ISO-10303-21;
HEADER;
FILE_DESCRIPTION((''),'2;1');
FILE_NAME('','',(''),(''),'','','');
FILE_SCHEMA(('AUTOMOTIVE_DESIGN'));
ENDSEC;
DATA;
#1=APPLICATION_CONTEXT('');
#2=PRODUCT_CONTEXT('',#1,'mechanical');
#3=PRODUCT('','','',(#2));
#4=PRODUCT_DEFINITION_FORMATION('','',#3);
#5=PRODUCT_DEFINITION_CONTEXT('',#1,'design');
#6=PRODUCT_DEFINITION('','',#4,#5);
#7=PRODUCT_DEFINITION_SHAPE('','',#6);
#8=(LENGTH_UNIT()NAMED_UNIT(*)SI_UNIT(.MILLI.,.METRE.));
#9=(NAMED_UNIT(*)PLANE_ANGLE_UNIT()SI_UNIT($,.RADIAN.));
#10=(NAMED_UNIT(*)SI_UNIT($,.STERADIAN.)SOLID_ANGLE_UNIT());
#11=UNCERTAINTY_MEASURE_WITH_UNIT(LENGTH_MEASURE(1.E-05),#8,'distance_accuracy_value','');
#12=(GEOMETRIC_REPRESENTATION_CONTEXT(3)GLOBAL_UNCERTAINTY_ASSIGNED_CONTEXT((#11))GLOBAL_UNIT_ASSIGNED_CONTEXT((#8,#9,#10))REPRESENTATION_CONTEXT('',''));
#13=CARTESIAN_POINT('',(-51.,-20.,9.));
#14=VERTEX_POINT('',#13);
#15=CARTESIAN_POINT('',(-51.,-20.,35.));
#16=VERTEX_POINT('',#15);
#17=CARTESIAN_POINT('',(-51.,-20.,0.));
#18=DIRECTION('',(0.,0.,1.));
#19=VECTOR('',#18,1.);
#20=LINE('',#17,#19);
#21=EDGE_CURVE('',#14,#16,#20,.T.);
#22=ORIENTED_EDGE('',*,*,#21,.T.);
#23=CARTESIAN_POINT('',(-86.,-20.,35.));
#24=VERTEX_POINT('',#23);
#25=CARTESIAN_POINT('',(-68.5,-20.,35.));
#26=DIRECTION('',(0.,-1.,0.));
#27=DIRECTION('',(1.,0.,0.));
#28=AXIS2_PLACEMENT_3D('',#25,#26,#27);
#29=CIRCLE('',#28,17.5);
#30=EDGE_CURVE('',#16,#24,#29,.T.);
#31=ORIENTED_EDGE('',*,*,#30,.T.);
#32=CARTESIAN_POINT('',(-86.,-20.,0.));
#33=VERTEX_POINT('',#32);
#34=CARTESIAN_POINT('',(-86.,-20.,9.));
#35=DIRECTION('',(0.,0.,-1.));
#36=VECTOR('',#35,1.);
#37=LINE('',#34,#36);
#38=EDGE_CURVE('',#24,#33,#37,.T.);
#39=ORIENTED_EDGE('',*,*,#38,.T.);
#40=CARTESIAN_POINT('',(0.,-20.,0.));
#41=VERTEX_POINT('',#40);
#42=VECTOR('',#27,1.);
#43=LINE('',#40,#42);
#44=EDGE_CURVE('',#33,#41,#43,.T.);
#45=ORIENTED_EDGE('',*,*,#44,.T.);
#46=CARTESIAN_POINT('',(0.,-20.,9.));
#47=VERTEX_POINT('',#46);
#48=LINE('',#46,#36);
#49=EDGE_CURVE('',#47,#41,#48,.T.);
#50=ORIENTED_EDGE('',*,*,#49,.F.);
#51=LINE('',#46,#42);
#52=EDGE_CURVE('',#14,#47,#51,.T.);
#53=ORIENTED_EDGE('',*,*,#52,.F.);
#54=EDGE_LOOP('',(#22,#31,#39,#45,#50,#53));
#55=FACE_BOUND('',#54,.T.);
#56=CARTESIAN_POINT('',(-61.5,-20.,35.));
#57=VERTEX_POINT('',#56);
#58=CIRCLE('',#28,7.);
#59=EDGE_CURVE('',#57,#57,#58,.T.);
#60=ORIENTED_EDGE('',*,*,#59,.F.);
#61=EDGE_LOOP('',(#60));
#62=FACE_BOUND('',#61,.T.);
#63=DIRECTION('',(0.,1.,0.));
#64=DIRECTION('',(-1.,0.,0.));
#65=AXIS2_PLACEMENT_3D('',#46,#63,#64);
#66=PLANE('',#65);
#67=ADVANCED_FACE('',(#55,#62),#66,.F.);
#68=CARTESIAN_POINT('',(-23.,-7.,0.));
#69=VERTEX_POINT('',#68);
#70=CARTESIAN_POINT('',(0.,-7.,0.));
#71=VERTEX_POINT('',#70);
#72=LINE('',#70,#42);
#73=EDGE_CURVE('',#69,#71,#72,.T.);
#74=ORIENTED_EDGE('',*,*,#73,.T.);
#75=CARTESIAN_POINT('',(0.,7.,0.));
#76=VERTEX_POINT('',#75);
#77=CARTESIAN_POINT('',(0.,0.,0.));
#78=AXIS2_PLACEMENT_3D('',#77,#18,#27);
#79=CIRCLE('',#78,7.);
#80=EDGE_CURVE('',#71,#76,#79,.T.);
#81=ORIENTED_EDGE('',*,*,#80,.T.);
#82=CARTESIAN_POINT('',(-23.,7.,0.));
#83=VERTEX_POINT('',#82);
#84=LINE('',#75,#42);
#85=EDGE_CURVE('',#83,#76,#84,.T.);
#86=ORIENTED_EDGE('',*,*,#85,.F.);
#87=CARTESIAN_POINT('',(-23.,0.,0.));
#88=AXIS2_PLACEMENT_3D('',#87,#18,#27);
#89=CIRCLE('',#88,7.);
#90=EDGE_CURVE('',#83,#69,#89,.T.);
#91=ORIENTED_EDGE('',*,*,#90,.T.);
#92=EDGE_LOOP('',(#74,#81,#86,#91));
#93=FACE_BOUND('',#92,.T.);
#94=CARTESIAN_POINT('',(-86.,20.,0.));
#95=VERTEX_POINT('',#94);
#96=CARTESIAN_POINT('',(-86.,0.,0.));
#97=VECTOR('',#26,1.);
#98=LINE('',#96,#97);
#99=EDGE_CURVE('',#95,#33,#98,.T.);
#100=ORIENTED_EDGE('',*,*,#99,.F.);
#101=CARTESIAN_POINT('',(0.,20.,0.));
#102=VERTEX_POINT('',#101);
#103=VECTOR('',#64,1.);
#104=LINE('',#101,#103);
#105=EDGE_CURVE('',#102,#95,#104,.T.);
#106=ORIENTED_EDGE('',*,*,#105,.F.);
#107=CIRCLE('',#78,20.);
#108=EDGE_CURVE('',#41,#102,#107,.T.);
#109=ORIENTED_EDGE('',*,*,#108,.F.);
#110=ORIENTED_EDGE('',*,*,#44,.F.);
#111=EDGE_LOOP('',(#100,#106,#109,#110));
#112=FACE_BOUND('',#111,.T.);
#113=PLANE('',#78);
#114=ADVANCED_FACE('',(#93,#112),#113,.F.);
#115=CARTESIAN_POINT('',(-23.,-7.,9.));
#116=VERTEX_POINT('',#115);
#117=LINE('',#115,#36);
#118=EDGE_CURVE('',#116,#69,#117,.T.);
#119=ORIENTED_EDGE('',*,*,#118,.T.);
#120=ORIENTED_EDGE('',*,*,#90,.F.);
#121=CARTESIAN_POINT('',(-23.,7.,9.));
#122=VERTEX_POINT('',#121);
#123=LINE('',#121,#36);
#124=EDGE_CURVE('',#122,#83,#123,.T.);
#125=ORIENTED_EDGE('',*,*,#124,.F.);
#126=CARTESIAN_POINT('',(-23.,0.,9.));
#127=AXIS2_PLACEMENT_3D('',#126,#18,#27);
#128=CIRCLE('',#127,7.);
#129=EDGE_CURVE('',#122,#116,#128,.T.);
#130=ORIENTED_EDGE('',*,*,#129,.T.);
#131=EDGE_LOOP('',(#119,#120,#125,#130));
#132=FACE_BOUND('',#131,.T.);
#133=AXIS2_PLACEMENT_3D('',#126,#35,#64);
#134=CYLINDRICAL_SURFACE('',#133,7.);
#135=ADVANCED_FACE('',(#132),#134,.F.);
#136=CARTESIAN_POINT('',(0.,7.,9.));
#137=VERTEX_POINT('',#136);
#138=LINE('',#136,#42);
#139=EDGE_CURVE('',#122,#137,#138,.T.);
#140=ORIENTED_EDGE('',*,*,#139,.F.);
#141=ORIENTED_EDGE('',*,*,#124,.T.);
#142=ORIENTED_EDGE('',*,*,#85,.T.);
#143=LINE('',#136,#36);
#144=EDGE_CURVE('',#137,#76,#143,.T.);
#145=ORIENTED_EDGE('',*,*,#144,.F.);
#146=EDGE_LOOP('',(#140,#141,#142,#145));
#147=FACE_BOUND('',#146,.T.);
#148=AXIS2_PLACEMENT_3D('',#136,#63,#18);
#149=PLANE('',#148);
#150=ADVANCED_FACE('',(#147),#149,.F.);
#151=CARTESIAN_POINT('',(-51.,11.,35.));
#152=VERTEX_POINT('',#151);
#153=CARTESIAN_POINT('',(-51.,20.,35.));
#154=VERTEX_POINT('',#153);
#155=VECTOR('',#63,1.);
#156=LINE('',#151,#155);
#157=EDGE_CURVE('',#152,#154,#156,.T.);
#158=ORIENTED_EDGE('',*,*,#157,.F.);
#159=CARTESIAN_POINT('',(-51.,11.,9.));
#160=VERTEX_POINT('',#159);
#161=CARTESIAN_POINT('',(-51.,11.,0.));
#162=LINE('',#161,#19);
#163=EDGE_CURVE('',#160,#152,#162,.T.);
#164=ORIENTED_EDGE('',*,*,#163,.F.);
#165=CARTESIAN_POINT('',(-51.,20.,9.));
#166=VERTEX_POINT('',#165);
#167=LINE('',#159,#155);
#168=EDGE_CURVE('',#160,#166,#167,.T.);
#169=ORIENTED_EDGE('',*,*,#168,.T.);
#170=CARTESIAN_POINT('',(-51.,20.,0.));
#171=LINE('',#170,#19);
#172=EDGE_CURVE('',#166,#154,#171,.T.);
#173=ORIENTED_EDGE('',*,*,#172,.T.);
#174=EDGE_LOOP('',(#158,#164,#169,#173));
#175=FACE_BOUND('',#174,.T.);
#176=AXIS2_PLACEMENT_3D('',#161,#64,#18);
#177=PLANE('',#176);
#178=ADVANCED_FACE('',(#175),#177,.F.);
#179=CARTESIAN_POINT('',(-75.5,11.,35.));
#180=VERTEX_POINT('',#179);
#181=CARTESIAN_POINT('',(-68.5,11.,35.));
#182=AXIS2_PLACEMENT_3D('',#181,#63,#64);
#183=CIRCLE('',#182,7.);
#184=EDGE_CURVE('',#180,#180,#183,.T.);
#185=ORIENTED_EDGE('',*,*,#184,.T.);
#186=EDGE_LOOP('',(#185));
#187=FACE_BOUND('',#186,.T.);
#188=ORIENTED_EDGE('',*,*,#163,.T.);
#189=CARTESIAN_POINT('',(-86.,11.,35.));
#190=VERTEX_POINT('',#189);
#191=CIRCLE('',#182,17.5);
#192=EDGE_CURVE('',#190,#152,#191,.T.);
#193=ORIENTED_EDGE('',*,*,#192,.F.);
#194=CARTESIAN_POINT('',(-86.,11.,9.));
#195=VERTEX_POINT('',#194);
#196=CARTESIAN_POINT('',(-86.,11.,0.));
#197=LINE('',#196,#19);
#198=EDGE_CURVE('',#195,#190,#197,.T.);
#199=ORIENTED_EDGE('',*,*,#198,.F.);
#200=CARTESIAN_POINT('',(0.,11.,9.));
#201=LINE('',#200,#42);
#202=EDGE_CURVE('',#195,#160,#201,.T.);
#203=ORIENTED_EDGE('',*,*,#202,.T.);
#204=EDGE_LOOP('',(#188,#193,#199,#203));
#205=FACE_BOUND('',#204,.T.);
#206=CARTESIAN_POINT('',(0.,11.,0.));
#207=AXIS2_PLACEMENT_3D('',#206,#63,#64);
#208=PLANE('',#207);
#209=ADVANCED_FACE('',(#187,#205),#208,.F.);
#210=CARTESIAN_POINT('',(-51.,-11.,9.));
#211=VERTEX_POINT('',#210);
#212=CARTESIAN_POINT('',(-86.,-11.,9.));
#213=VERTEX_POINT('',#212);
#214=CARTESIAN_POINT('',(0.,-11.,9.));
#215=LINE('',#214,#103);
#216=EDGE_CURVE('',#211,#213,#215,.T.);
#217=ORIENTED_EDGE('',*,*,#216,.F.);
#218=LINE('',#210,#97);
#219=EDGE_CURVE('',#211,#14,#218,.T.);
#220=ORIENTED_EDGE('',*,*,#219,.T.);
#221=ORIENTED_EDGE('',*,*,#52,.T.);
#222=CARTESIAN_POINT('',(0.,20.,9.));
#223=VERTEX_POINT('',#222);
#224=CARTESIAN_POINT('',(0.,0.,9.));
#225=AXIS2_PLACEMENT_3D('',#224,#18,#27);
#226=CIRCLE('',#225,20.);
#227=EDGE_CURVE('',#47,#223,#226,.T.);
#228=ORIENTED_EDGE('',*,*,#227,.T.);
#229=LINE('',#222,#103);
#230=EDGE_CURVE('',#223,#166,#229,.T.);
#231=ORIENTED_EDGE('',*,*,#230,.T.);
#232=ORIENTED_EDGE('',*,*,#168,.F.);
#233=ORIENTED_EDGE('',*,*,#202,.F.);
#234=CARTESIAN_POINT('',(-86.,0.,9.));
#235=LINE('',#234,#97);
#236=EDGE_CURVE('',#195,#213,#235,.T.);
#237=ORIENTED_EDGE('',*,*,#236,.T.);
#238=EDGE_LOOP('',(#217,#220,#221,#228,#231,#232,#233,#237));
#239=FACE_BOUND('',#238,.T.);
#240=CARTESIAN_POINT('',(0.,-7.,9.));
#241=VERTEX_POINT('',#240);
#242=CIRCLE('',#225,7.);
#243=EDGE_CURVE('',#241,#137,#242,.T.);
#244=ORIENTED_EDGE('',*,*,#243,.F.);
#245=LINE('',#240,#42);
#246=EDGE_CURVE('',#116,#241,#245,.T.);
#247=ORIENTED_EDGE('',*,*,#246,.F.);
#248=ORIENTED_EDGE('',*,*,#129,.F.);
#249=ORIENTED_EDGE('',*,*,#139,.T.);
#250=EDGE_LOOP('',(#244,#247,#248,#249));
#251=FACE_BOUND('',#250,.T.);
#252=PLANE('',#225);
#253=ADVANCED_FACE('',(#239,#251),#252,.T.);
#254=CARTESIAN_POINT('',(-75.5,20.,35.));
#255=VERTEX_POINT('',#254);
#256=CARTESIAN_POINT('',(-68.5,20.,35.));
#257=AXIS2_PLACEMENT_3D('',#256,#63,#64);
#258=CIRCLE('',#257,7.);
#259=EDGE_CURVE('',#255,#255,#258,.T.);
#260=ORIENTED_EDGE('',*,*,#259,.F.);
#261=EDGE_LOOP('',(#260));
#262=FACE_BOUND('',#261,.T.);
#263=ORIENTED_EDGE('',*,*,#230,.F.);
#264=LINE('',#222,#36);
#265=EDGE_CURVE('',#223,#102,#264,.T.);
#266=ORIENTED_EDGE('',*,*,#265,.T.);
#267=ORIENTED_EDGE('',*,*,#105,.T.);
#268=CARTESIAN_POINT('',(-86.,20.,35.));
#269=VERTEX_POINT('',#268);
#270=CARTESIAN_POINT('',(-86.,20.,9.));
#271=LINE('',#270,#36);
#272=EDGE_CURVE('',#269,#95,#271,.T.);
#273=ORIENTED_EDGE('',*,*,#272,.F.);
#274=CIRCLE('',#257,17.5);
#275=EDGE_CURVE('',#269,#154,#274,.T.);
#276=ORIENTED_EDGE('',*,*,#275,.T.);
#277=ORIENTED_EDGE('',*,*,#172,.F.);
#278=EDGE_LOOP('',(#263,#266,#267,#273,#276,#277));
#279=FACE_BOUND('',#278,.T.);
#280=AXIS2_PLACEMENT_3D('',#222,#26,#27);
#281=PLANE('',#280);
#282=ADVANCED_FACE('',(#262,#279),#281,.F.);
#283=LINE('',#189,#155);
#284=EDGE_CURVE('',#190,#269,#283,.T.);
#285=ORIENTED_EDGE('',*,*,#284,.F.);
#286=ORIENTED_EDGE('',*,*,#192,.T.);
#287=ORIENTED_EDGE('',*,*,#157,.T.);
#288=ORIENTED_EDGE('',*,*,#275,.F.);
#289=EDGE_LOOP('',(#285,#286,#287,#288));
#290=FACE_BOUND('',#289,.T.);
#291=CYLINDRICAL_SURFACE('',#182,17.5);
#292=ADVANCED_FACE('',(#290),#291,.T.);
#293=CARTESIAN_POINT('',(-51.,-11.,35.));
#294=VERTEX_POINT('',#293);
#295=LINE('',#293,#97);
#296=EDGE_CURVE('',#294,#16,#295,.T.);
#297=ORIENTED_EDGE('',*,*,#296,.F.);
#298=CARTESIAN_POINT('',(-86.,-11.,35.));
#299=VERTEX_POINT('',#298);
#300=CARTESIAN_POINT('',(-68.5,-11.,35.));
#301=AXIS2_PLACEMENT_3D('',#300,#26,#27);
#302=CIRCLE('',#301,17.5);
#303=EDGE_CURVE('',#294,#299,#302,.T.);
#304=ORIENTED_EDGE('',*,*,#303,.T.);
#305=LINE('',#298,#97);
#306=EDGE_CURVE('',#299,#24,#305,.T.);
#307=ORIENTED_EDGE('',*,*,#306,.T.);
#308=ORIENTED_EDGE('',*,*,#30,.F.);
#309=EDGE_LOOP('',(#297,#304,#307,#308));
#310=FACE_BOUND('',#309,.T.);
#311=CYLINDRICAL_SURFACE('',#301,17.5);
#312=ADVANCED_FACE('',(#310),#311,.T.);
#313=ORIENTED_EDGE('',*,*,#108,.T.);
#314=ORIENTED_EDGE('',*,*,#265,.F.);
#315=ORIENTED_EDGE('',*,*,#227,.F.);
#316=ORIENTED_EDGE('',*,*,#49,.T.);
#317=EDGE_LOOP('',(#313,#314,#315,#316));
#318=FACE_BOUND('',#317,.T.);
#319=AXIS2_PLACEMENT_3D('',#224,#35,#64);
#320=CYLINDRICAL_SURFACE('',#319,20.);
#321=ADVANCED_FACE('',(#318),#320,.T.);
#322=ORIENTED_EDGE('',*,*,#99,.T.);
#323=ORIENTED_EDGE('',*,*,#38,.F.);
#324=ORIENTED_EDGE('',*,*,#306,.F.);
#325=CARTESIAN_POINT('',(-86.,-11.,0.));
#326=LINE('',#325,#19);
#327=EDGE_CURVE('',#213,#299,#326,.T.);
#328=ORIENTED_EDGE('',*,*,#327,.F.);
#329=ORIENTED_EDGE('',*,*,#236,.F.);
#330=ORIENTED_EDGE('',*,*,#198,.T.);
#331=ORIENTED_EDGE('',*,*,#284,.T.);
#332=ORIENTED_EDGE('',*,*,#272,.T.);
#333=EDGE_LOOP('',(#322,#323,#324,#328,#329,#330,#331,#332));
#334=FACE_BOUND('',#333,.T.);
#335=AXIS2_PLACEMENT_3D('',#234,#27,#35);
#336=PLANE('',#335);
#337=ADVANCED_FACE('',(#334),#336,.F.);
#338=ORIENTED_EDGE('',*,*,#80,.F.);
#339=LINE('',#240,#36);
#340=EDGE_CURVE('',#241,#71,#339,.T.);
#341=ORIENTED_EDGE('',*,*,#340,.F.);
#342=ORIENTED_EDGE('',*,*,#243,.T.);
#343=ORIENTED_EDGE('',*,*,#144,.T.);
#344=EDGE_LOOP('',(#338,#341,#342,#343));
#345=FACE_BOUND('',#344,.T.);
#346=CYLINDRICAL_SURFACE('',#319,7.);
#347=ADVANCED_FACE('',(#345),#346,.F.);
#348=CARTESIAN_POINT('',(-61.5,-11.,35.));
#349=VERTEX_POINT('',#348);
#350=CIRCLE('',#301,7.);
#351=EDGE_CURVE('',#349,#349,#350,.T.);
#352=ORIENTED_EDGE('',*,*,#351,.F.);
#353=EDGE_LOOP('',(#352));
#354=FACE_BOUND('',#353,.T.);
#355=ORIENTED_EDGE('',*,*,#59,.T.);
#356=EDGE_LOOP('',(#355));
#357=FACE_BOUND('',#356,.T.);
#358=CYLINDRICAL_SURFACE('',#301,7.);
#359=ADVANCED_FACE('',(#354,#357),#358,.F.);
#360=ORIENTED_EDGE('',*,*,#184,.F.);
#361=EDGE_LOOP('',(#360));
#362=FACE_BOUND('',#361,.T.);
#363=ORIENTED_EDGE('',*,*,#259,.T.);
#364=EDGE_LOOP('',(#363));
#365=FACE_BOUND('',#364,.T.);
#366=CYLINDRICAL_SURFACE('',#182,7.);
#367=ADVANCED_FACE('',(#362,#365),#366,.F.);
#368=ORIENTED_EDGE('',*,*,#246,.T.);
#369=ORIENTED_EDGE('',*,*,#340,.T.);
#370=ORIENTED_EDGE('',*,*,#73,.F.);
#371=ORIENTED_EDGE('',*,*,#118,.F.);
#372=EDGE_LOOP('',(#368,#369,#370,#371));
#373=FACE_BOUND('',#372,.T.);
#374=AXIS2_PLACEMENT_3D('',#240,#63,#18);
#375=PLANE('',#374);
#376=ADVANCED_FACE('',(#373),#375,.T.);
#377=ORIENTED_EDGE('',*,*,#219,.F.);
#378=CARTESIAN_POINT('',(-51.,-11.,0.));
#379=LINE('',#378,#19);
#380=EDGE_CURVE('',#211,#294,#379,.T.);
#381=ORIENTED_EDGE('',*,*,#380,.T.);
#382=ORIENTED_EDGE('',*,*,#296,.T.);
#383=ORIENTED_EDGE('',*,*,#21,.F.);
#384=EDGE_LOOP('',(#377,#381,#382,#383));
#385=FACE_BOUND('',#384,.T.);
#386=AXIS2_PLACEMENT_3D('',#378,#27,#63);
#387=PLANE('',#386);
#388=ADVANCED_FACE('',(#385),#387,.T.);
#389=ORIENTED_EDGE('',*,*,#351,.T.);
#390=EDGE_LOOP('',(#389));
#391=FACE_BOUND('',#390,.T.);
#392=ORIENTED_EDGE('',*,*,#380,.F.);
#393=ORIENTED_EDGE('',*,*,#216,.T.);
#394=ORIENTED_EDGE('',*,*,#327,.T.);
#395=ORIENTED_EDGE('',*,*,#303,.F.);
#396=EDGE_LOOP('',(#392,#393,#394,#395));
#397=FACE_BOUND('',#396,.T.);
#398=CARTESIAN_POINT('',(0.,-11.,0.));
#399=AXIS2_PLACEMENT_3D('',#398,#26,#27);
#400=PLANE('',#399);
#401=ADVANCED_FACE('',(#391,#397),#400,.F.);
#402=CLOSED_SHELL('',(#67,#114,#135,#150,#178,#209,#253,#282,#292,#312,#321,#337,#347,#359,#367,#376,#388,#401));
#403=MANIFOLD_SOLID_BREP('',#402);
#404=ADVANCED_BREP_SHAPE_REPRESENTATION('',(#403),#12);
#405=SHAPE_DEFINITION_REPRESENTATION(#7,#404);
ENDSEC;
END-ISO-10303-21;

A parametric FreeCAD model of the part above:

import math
import FreeCAD as App
import Part
import Sketcher

V = App.Vector

doc = App.newDocument("Part")
body = doc.addObject("PartDesign::Body", "Body")

# Sketch on XY plane
sketch1 = body.newObject("Sketcher::SketchObject", "Sketch")
sketch1.AttachmentSupport = (doc.getObject("XY_Plane"), [""])
sketch1.MapMode = "FlatFace"
sketch1.addGeometry([
    Part.LineSegment(V(0, 20, 0), V(-86, 20, 0)),  # 0
    Part.LineSegment(V(-86, 20, 0), V(-86, -20, 0)),  # 1
    Part.LineSegment(V(-86, -20, 0), V(0, -20, 0)),  # 2
    Part.ArcOfCircle(Part.Circle(V(0, 0, 0), V(0, 0, 1), 20), math.radians(-90), math.radians(90)),  # 3
    Part.LineSegment(V(0, -7, 0), V(-23, -7, 0)),  # 4
    Part.ArcOfCircle(Part.Circle(V(-23, 0, 0), V(0, 0, 1), 7), math.radians(90), math.radians(270)),  # 5
    Part.LineSegment(V(-23, 7, 0), V(0, 7, 0)),  # 6
    Part.ArcOfCircle(Part.Circle(V(0, 0, 0), V(0, 0, 1), 7), math.radians(0), math.radians(90)),  # 7
    Part.ArcOfCircle(Part.Circle(V(0, 0, 0), V(0, 0, 1), 7), math.radians(-90), math.radians(0)),  # 8
], False)
sketch1.addConstraint([
    Sketcher.Constraint("Coincident", 0, 2, 1, 1),
    Sketcher.Constraint("Coincident", 1, 2, 2, 1),
    Sketcher.Constraint("Tangent", 2, 2, 3, 1),
    Sketcher.Constraint("Tangent", 3, 2, 0, 1),
    Sketcher.Constraint("Tangent", 4, 2, 5, 2),
    Sketcher.Constraint("Tangent", 5, 1, 6, 1),
    Sketcher.Constraint("Tangent", 6, 2, 7, 2),
    Sketcher.Constraint("Tangent", 7, 1, 8, 2),
    Sketcher.Constraint("Tangent", 8, 1, 4, 1),
    Sketcher.Constraint("Horizontal", 0),
    Sketcher.Constraint("Vertical", 1),
    Sketcher.Constraint("Horizontal", 2),
    Sketcher.Constraint("Horizontal", 4),
    Sketcher.Constraint("Horizontal", 6),
    Sketcher.Constraint("Coincident", 3, 3, -1, 1),
    Sketcher.Constraint("Coincident", 7, 3, -1, 1),
    Sketcher.Constraint("Equal", 5, 7),
    Sketcher.Constraint("PointOnObject", 7, 1, -1),
    Sketcher.Constraint("Radius", 3, 20.0),
    Sketcher.Constraint("Radius", 5, 7.0),
    Sketcher.Constraint("DistanceX", 0, 2, 0, 1, 86.0),
    Sketcher.Constraint("DistanceX", 4, 2, 4, 1, 23.0),
])
pad1 = body.newObject("PartDesign::Pad", "Pad")
pad1.Profile = sketch1
pad1.Length = 9

# Sketch on XZ plane
sketch2 = body.newObject("Sketcher::SketchObject", "Sketch001")
sketch2.AttachmentSupport = (doc.getObject("XZ_Plane"), [""])
sketch2.MapMode = "FlatFace"
sketch2.AttachmentOffset = App.Placement(V(0, 0, 20), App.Rotation())
sketch2.addGeometry([
    Part.ArcOfCircle(Part.Circle(V(-68, 35, 0), V(0, 0, 1), 18), math.radians(0), math.radians(180)),  # 0
    Part.LineSegment(V(-86, 35, 0), V(-86, 9, 0)),  # 1
    Part.LineSegment(V(-86, 9, 0), V(-51, 9, 0)),  # 2
    Part.LineSegment(V(-51, 9, 0), V(-51, 35, 0)),  # 3
    Part.Circle(V(-68, 35, 0), V(0, 0, 1), 7),  # 4
], False)
sketch2.addConstraint([
    Sketcher.Constraint("Tangent", 0, 2, 1, 1),
    Sketcher.Constraint("Coincident", 1, 2, 2, 1),
    Sketcher.Constraint("Coincident", 2, 2, 3, 1),
    Sketcher.Constraint("Tangent", 3, 2, 0, 1),
    Sketcher.Constraint("Vertical", 1),
    Sketcher.Constraint("Horizontal", 2),
    Sketcher.Constraint("Vertical", 3),
    Sketcher.Constraint("Coincident", 4, 3, 0, 3),
    Sketcher.Constraint("Diameter", 4, 14.0),
    Sketcher.Constraint("Radius", 0, 17.5),
    Sketcher.Constraint("DistanceY", 1, 2, 1, 1, 26.0),
    Sketcher.Constraint("DistanceY", -1, 1, 0, 3, 35.0),
    Sketcher.Constraint("DistanceX", 0, 2, -1, 1, 86.0),
])
pad2 = body.newObject("PartDesign::Pad", "Pad001")
pad2.Profile = sketch2
pad2.Length = 9
pad2.Reversed = True

# Sketch on XZ plane
sketch3 = body.newObject("Sketcher::SketchObject", "Sketch002")
sketch3.AttachmentSupport = (doc.getObject("XZ_Plane"), [""])
sketch3.MapMode = "FlatFace"
sketch3.AttachmentOffset = App.Placement(V(0, 0, -11), App.Rotation())
sketch3.addGeometry([
    Part.LineSegment(V(-51, 9, 0), V(-86, 9, 0)),  # 0
    Part.LineSegment(V(-86, 9, 0), V(-86, 35, 0)),  # 1
    Part.ArcOfCircle(Part.Circle(V(-68, 35, 0), V(0, 0, 1), 18), math.radians(0), math.radians(180)),  # 2
    Part.LineSegment(V(-51, 35, 0), V(-51, 9, 0)),  # 3
    Part.Circle(V(-68, 35, 0), V(0, 0, 1), 7),  # 4
], False)
sketch3.addConstraint([
    Sketcher.Constraint("Coincident", 0, 2, 1, 1),
    Sketcher.Constraint("Tangent", 1, 2, 2, 2),
    Sketcher.Constraint("Tangent", 2, 1, 3, 1),
    Sketcher.Constraint("Coincident", 3, 2, 0, 1),
    Sketcher.Constraint("Horizontal", 0),
    Sketcher.Constraint("Vertical", 1),
    Sketcher.Constraint("Vertical", 3),
    Sketcher.Constraint("Coincident", 4, 3, 2, 3),
    Sketcher.Constraint("Diameter", 4, 14.0),
    Sketcher.Constraint("Radius", 2, 17.5),
    Sketcher.Constraint("DistanceY", 1, 1, 1, 2, 26.0),
    Sketcher.Constraint("DistanceY", -1, 1, 2, 3, 35.0),
    Sketcher.Constraint("DistanceX", 0, 2, -1, 1, 86.0),
])
pad3 = body.newObject("PartDesign::Pad", "Pad002")
pad3.Profile = sketch3
pad3.Length = 9
pad3.Reversed = True

doc.recompute()
